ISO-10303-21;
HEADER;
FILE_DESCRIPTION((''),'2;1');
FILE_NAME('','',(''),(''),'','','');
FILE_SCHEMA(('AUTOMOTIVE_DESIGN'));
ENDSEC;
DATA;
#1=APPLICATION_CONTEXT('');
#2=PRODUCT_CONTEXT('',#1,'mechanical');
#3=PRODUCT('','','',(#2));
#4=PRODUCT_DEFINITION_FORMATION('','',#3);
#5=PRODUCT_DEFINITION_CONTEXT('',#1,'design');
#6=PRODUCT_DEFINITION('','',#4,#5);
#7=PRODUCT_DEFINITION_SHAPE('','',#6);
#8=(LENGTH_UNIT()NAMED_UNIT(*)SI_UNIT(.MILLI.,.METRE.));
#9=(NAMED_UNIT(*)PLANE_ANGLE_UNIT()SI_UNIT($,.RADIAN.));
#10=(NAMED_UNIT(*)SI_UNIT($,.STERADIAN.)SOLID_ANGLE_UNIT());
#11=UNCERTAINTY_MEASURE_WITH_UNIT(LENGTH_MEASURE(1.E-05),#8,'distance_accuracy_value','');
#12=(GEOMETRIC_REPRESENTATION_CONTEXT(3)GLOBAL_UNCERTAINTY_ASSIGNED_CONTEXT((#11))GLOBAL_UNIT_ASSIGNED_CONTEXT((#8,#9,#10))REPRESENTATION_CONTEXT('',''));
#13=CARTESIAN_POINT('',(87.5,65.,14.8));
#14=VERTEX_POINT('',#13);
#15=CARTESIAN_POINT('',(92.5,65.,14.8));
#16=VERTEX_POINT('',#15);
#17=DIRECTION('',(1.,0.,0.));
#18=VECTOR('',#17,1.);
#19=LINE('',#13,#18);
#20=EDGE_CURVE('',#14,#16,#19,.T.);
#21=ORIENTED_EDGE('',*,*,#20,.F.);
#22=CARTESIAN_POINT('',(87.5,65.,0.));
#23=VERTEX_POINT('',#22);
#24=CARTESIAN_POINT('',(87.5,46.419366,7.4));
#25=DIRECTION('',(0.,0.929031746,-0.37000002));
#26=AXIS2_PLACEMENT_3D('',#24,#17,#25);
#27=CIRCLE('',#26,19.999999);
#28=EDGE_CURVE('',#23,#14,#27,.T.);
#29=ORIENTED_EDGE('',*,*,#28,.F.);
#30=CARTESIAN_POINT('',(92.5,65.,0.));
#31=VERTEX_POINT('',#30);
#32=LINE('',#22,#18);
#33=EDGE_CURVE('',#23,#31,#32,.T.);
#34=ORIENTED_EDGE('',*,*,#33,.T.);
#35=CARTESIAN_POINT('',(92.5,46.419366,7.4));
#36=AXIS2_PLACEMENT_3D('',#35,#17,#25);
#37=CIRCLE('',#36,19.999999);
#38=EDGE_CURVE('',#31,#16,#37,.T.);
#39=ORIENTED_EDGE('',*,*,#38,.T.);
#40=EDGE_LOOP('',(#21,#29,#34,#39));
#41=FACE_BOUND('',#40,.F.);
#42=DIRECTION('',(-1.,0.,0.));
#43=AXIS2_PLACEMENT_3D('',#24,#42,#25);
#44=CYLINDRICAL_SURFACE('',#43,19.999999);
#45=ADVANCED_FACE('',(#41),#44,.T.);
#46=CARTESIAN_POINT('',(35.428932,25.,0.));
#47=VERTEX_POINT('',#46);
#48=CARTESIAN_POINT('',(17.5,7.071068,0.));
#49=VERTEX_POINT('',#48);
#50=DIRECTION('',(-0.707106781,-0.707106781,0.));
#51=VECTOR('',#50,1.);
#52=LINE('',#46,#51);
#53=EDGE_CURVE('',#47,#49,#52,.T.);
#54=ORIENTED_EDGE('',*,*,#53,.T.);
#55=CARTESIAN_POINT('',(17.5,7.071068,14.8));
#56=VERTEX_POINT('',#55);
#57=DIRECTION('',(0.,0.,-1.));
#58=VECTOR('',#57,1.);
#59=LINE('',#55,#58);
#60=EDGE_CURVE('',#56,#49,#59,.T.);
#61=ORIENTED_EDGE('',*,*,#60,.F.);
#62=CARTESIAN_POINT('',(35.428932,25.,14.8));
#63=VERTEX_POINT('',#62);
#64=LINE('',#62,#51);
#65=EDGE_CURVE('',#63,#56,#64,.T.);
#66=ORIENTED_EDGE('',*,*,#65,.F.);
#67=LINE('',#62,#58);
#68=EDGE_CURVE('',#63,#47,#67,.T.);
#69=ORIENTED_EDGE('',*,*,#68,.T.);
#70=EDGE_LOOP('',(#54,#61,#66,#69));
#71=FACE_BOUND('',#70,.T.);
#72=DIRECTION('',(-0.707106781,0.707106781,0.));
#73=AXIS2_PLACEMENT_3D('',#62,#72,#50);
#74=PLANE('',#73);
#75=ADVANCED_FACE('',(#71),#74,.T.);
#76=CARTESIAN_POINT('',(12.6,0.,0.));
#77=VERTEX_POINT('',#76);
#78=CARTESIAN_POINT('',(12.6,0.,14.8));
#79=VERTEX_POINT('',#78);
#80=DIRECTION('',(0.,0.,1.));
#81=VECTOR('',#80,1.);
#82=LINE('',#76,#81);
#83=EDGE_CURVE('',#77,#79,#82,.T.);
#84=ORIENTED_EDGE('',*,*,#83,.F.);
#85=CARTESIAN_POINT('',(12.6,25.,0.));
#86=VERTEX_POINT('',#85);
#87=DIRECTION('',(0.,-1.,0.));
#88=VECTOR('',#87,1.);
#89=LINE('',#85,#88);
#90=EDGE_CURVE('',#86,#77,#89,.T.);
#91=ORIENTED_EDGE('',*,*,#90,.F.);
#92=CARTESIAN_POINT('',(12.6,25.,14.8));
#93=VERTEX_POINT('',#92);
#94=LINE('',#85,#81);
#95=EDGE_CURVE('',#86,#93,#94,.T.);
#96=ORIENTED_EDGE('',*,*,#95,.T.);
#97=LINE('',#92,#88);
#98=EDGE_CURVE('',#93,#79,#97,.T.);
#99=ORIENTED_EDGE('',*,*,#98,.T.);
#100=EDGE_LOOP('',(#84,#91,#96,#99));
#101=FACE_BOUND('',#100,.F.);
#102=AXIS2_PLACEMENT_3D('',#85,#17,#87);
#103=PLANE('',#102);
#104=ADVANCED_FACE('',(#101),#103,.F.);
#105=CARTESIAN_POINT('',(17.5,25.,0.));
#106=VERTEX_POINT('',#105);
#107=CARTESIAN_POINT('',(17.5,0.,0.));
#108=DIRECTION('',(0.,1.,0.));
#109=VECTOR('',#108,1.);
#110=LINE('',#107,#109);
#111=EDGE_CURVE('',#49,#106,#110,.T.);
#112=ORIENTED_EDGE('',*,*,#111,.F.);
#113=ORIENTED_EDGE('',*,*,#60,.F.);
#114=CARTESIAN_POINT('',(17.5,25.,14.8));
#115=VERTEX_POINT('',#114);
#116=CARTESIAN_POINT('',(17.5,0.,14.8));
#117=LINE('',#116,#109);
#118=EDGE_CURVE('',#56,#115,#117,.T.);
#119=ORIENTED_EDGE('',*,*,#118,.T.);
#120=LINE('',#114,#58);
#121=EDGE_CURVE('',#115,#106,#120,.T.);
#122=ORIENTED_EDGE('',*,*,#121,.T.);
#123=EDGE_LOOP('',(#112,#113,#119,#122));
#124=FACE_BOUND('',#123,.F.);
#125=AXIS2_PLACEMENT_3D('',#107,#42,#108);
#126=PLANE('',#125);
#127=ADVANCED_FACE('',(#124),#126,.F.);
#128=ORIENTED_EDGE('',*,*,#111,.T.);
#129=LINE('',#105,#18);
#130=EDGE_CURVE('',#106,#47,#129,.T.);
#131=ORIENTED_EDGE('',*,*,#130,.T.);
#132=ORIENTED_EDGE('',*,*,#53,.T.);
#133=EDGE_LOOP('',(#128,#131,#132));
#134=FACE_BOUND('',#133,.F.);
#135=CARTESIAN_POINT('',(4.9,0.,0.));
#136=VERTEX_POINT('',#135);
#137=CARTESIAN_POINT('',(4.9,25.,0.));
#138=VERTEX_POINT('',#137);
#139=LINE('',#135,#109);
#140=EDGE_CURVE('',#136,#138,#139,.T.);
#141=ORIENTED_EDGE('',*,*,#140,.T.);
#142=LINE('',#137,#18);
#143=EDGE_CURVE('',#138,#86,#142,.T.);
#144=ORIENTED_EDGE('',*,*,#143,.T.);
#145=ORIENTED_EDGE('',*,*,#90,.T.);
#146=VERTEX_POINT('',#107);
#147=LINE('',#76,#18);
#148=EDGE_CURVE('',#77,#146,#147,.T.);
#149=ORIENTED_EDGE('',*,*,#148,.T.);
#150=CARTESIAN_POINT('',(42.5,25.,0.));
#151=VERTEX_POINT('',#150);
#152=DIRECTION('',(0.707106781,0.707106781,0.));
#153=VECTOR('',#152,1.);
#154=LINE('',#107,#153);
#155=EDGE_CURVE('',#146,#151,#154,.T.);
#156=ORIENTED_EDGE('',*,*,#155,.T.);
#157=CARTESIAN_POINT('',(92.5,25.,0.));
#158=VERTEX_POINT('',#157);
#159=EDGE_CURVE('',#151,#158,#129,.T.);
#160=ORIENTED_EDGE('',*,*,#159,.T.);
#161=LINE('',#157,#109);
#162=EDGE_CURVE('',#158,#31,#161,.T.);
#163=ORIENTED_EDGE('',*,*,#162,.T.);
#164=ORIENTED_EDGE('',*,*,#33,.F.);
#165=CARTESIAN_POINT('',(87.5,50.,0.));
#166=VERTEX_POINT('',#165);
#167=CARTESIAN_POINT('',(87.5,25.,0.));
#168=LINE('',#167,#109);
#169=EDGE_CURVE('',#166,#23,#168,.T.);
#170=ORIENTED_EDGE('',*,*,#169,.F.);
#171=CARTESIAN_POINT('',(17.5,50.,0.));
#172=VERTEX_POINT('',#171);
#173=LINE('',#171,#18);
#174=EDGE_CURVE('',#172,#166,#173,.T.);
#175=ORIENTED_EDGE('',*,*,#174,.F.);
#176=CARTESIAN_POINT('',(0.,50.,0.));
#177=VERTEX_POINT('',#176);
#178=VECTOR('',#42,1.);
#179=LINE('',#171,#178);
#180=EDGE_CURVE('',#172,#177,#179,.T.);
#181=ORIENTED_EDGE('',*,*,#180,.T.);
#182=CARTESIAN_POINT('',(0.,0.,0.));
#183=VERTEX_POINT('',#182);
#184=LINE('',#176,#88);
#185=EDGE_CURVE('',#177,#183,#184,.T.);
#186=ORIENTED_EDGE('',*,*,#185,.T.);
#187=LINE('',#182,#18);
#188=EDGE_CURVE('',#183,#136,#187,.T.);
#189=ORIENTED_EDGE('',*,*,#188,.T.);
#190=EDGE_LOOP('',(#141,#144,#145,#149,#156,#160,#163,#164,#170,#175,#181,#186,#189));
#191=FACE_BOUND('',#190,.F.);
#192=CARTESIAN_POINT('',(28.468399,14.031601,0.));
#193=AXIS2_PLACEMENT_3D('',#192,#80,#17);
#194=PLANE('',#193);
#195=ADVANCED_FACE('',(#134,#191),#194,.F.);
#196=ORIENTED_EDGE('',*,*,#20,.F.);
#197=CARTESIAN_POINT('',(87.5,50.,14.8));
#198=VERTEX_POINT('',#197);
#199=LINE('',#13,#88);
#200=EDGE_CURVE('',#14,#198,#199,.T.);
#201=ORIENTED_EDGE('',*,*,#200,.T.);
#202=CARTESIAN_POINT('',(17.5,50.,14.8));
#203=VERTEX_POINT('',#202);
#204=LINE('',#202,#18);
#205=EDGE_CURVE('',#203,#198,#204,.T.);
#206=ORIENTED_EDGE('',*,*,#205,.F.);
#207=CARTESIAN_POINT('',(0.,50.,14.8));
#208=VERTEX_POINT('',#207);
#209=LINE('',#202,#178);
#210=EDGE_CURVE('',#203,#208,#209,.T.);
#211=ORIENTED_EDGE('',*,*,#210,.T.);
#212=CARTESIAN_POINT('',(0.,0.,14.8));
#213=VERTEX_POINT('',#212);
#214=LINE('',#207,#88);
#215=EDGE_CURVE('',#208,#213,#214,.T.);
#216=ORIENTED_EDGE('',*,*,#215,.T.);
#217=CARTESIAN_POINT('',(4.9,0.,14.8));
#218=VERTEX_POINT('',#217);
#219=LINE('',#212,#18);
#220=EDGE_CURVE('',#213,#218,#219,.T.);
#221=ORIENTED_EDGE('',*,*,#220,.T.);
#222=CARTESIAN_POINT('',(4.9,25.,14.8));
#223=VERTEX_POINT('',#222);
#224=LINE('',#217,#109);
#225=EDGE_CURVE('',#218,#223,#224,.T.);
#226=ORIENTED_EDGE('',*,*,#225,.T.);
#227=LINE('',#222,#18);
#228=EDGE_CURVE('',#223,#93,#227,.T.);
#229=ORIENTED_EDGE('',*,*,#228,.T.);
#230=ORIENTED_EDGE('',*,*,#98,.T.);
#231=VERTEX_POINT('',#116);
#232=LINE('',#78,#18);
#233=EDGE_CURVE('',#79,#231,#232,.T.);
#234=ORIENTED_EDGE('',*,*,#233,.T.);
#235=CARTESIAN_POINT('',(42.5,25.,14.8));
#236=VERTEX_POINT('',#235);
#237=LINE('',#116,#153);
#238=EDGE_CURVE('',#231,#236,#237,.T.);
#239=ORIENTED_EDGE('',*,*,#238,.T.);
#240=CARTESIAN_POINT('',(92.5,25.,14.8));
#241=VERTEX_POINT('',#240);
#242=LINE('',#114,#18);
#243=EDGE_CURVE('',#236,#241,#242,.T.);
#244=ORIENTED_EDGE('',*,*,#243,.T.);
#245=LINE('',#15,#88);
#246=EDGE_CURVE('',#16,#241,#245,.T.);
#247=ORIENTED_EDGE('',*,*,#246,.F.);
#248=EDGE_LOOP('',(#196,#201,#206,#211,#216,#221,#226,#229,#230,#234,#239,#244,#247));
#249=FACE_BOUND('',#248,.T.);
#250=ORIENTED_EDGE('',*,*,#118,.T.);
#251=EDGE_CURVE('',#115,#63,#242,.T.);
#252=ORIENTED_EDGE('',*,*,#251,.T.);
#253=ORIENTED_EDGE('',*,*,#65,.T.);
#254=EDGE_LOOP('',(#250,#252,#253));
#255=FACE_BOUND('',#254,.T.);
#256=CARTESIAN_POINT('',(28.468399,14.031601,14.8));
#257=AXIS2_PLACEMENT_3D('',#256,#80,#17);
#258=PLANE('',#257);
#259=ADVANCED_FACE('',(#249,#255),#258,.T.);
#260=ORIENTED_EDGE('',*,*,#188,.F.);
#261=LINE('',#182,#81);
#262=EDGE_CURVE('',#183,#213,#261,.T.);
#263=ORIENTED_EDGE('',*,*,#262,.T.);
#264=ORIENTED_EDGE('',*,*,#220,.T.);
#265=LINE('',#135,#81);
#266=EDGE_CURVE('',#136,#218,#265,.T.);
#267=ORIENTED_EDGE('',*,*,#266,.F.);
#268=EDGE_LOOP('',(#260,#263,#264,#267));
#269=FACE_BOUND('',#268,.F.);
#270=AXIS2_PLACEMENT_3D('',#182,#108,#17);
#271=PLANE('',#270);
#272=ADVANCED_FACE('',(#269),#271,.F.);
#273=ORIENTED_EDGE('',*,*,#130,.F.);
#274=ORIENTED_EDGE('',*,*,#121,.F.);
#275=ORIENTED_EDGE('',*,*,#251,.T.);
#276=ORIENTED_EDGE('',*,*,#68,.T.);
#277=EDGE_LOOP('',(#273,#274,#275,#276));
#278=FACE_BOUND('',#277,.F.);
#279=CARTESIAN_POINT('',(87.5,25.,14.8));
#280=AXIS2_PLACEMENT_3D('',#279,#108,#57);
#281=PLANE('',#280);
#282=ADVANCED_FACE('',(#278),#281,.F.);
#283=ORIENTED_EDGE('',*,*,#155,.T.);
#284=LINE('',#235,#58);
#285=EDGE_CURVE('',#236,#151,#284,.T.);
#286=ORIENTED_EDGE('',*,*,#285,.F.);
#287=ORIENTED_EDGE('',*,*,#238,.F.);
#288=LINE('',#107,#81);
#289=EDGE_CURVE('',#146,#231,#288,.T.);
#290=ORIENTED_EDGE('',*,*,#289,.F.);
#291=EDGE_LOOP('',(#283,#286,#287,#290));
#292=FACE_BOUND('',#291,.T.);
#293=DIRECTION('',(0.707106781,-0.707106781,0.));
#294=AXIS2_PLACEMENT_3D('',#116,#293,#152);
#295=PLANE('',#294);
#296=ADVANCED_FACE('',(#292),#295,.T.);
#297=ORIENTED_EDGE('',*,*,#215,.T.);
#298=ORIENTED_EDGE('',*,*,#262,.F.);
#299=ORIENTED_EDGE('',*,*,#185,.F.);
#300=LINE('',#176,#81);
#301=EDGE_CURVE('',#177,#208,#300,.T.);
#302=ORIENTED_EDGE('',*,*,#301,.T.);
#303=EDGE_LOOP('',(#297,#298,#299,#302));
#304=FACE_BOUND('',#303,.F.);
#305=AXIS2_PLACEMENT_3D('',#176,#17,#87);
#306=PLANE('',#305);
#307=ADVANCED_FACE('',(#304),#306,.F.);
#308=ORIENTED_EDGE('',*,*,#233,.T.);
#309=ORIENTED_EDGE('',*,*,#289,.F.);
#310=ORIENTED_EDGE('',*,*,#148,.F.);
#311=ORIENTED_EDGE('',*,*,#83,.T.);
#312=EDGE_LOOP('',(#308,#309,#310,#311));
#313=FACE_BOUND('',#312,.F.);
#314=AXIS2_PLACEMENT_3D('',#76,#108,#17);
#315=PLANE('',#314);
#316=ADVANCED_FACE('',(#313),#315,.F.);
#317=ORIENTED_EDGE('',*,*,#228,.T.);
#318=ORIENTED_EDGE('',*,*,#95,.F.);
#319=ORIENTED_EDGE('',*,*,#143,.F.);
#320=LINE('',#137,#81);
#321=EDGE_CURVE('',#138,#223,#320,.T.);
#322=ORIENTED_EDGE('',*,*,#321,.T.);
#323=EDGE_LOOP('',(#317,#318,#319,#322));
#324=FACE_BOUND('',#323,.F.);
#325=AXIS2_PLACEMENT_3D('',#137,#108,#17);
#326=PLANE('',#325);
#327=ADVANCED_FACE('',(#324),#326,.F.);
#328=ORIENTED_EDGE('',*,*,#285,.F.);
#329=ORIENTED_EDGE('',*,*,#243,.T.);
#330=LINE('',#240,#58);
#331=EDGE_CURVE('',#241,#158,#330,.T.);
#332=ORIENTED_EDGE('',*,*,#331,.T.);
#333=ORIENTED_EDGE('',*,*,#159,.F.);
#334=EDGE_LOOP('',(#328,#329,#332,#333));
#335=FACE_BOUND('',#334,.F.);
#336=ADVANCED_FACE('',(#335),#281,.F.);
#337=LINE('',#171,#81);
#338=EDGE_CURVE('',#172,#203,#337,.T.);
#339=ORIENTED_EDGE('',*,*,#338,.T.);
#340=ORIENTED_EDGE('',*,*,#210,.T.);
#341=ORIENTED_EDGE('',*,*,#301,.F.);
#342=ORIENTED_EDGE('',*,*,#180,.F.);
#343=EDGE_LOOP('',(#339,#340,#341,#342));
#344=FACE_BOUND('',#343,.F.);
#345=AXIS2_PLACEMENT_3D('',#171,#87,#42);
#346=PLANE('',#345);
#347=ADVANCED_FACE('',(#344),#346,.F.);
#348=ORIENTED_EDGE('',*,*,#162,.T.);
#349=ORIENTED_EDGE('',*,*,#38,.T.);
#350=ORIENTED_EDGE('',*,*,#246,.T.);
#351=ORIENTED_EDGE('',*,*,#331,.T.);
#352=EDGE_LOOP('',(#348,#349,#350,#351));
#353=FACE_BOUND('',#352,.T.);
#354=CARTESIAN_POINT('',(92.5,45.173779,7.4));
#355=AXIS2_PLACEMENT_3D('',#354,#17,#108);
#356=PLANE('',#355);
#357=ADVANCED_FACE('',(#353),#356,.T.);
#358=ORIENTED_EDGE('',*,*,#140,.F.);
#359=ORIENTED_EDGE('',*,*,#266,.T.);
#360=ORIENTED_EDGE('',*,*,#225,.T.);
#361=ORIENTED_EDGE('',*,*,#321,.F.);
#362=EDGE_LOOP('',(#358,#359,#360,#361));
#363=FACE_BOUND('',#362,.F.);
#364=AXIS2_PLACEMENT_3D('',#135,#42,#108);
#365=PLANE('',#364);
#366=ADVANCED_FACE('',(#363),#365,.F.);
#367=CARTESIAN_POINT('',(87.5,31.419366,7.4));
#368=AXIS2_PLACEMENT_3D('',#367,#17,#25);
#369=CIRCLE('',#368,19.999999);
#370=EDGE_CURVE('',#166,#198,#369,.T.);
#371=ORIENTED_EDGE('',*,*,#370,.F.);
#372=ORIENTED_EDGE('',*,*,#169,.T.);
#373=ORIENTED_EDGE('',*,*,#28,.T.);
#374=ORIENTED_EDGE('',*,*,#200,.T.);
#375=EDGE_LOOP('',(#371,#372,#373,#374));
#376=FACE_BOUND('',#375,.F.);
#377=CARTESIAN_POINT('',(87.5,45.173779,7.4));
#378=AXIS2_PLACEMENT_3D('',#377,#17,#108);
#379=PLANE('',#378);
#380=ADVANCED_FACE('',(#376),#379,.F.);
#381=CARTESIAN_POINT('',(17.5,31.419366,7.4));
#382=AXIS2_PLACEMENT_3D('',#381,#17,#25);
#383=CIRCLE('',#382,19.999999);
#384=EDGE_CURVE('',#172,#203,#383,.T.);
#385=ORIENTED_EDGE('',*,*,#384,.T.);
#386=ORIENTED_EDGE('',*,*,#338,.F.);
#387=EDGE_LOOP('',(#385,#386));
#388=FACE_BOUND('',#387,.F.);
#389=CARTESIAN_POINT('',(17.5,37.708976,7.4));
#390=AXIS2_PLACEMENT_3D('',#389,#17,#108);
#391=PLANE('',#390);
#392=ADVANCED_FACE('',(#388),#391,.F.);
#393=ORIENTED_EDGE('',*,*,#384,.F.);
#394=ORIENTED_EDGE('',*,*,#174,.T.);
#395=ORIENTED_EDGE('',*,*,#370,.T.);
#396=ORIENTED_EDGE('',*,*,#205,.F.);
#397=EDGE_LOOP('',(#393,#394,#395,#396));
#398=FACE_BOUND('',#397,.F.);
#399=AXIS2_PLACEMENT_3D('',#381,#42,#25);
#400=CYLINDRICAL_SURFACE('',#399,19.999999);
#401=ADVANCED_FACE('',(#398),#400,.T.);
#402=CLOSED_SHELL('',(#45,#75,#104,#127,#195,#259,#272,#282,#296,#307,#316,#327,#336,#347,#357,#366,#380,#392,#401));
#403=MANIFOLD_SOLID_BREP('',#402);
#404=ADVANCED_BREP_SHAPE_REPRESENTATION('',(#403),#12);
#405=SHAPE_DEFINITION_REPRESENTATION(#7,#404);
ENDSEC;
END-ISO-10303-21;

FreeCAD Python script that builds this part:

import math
import FreeCAD as App
import Part
import Sketcher
Q = App.Units.Quantity


def add_polygon(sketch, points):
    """Adds a closed chain of lines whose ends are joined by coincident constraints."""
    first, n = sketch.GeometryCount, len(points)
    for a, b in zip(points, points[1:] + points[:1]):
        sketch.addGeometry(Part.LineSegment(App.Vector(*a, 0), App.Vector(*b, 0)), False)
    for i in range(n):
        sketch.addConstraint(Sketcher.Constraint("Coincident", first + i, 2, first + (i + 1) % n, 1))

doc = App.newDocument("Part")
body = doc.addObject("PartDesign::Body", "Body")

# Sketch on XY plane
sketch1 = body.newObject("Sketcher::SketchObject", "Sketch")
sketch1.AttachmentSupport = (doc.getObject("XY_Plane"), [""])
sketch1.MapMode = "FlatFace"
add_polygon(sketch1, [(0, 50), (0, 0), (4.9, 0), (4.9, 25), (12.6, 25), (12.6, 0), (17.5, 0), (17.5, 50)])  # lines 0-7
sketch1.addConstraint([
    Sketcher.Constraint("Vertical", 0),
    Sketcher.Constraint("Horizontal", 1),
    Sketcher.Constraint("Vertical", 2),
    Sketcher.Constraint("Horizontal", 3),
    Sketcher.Constraint("Vertical", 4),
    Sketcher.Constraint("Horizontal", 5),
    Sketcher.Constraint("Vertical", 6),
    Sketcher.Constraint("Horizontal", 7),
    Sketcher.Constraint("Coincident", 0, 2, -1, 1),
    Sketcher.Constraint("PointOnObject", 4, 2, -1),
    Sketcher.Constraint("Equal", 1, 5),
    Sketcher.Constraint("DistanceY", 0, 2, 0, 1, Q("50 mm")),
    Sketcher.Constraint("DistanceY", 2, 1, 2, 2, Q("25 mm")),
    Sketcher.Constraint("DistanceX", 1, 1, 1, 2, Q("4.9 mm")),
    Sketcher.Constraint("DistanceX", 3, 1, 3, 2, Q("7.7 mm")),
])
pad1 = body.newObject("PartDesign::Pad", "Pad")
pad1.Profile = sketch1
pad1.Length = 14.8

# Sketch on YZ plane
sketch2 = body.newObject("Sketcher::SketchObject", "Sketch001")
sketch2.AttachmentSupport = (doc.getObject("YZ_Plane"), [""])
sketch2.MapMode = "FlatFace"
sketch2.AttachmentOffset = App.Placement(App.Vector(0, 0, 17.5), App.Rotation())
sketch2.addGeometry([
    Part.ArcOfCircle(Part.Circle(App.Vector(31.419366, 7.4, 0), App.Vector(0, 0, 1), 19.999999), math.radians(-21.715618), math.radians(21.715618)),
    Part.LineSegment(App.Vector(50, 14.8, 0), App.Vector(25, 14.8, 0)),
    Part.LineSegment(App.Vector(25, 14.8, 0), App.Vector(25, 0, 0)),
    Part.LineSegment(App.Vector(25, 0, 0), App.Vector(50, 0, 0)),
], False)
sketch2.addConstraint([
    Sketcher.Constraint("Coincident", 0, 2, 1, 1),
    Sketcher.Constraint("Coincident", 1, 2, 2, 1),
    Sketcher.Constraint("Coincident", 2, 2, 3, 1),
    Sketcher.Constraint("Coincident", 3, 2, 0, 1),
    Sketcher.Constraint("Horizontal", 1),
    Sketcher.Constraint("Vertical", 2),
    Sketcher.Constraint("Horizontal", 3),
    Sketcher.Constraint("PointOnObject", 2, 2, -1),
    Sketcher.Constraint("Vertical", 0, 2, 3, 2),
    Sketcher.Constraint("Radius", 0, Q("19.999999 mm")),
    Sketcher.Constraint("DistanceX", 1, 2, 1, 1, Q("25 mm")),
    Sketcher.Constraint("DistanceY", 2, 2, 2, 1, Q("14.8 mm")),
    Sketcher.Constraint("DistanceX", -1, 1, 0, 2, Q("50 mm")),
])
pad2 = body.newObject("PartDesign::Pad", "Pad001")
pad2.Profile = sketch2
pad2.Length = 70

# Sketch on YZ plane
sketch3 = body.newObject("Sketcher::SketchObject", "Sketch002")
sketch3.AttachmentSupport = (doc.getObject("YZ_Plane"), [""])
sketch3.MapMode = "FlatFace"
sketch3.AttachmentOffset = App.Placement(App.Vector(0, 0, 87.5), App.Rotation())
sketch3.addGeometry([
    Part.LineSegment(App.Vector(65, 14.8, 0), App.Vector(25, 14.8, 0)),
    Part.LineSegment(App.Vector(25, 14.8, 0), App.Vector(25, 0, 0)),
    Part.LineSegment(App.Vector(25, 0, 0), App.Vector(65, 0, 0)),
    Part.ArcOfCircle(Part.Circle(App.Vector(46.419366, 7.4, 0), App.Vector(0, 0, 1), 19.999999), math.radians(-21.715618), math.radians(21.715618)),
], False)
sketch3.addConstraint([
    Sketcher.Constraint("Coincident", 0, 2, 1, 1),
    Sketcher.Constraint("Coincident", 1, 2, 2, 1),
    Sketcher.Constraint("Coincident", 2, 2, 3, 1),
    Sketcher.Constraint("Coincident", 3, 2, 0, 1),
    Sketcher.Constraint("Horizontal", 0),
    Sketcher.Constraint("Vertical", 1),
    Sketcher.Constraint("Horizontal", 2),
    Sketcher.Constraint("PointOnObject", 1, 2, -1),
    Sketcher.Constraint("Vertical", 2, 2, 3, 2),
    Sketcher.Constraint("Radius", 3, Q("19.999999 mm")),
    Sketcher.Constraint("DistanceX", 0, 2, 0, 1, Q("40 mm")),
    Sketcher.Constraint("DistanceY", 1, 2, 1, 1, Q("14.8 mm")),
    Sketcher.Constraint("DistanceX", -1, 1, 0, 2, Q("25 mm")),
])
pad3 = body.newObject("PartDesign::Pad", "Pad002")
pad3.Profile = sketch3
pad3.Length = 5

# Sketch on XY plane
sketch4 = body.newObject("Sketcher::SketchObject", "Sketch003")
sketch4.AttachmentSupport = (doc.getObject("XY_Plane"), [""])
sketch4.MapMode = "FlatFace"
sketch4.AttachmentOffset = App.Placement(App.Vector(0, 0, 14.8), App.Rotation())
add_polygon(sketch4, [(17.5, 7.071068), (17.5, 0), (42.5, 25), (35.428932, 25)])  # lines 0-3
sketch4.addConstraint([
    Sketcher.Constraint("Vertical", 0),
    Sketcher.Constraint("Horizontal", 2),
    Sketcher.Constraint("PointOnObject", 0, 2, -1),
    Sketcher.Constraint("Parallel", 1, 3),
    Sketcher.Constraint("Equal", 2, 0),
    Sketcher.Constraint("DistanceY", -1, 1, 1, 2, Q("25 mm")),
    Sketcher.Constraint("DistanceX", -1, 1, 0, 2, Q("17.5 mm")),
    Sketcher.Constraint("DistanceY", 0, 2, 0, 1, Q("7.071068 mm")),
])
pad4 = body.newObject("PartDesign::Pad", "Pad003")
pad4.Profile = sketch4
pad4.Length = 14.8
pad4.Reversed = True

doc.recompute()
